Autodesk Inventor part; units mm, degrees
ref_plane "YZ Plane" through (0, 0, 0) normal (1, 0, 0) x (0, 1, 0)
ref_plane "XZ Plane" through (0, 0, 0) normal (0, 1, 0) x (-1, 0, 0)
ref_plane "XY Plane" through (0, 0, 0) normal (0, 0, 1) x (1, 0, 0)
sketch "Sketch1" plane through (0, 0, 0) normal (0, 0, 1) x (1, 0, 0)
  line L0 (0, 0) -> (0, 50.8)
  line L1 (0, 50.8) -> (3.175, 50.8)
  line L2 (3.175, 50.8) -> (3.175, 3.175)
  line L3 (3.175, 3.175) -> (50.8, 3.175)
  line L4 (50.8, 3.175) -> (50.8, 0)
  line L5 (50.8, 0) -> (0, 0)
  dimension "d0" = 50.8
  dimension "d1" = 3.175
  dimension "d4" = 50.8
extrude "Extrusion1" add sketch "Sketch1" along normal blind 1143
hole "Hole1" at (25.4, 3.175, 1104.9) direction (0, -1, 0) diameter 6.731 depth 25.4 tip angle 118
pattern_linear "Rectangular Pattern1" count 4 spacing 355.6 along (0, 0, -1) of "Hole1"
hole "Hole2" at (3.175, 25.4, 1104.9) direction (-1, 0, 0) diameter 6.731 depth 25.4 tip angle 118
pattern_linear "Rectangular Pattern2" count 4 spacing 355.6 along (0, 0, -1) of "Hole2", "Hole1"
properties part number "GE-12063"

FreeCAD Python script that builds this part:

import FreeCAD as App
import Part
import Sketcher
from FreeCAD import Vector
Q = App.Units.Quantity


def add_polygon(sketch, points):
    """Adds a closed chain of lines whose ends are joined by coincident constraints."""
    first, n = sketch.GeometryCount, len(points)
    for a, b in zip(points, points[1:] + points[:1]):
        sketch.addGeometry(Part.LineSegment(App.Vector(*a, 0), App.Vector(*b, 0)), False)
    for i in range(n):
        sketch.addConstraint(Sketcher.Constraint("Coincident", first + i, 2, first + (i + 1) % n, 1))

doc = App.newDocument("Part")
params = doc.addObject("Spreadsheet::Sheet", "Params")
for row, (alias, value) in enumerate([
    ("sketch1_width", "2 in"),
    ("sketch1_width2", "0.125 in"),
    ("pad1_length", "45 in"),
    ("sketch2_diameter", "0.265 in"),
    ("hole_diameter", "0.265 in"),
    ("hole_depth", "1 in"),
    ("linearpattern_pitch", "14 in"),
    ("sketch3_diameter", "0.265 in"),
    ("hole2_diameter", "0.265 in"),
    ("hole2_depth", "1 in"),
    ("linearpattern2_pitch", "14 in"),
], start=1):
    params.set(f"A{row}", alias)
    params.set(f"B{row}", "=" + value)
    params.setAlias(f"B{row}", alias)

body = doc.addObject("PartDesign::Body", "Body")

# Sketch on XY plane
sketch1 = body.newObject("Sketcher::SketchObject", "Sketch")
sketch1.AttachmentSupport = (doc.getObject("XY_Plane"), [""])
sketch1.MapMode = "FlatFace"
add_polygon(sketch1, [(0, 50.8), (0, 0), (50.8, 0), (50.8, 3.2), (3.2, 3.2), (3.2, 50.8)])  # lines 0-5
sketch1.addConstraint([
    Sketcher.Constraint("Vertical", 0),
    Sketcher.Constraint("Horizontal", 1),
    Sketcher.Constraint("Vertical", 2),
    Sketcher.Constraint("Horizontal", 3),
    Sketcher.Constraint("Vertical", 4),
    Sketcher.Constraint("Horizontal", 5),
    Sketcher.Constraint("Coincident", 0, 2, -1, 1),
    Sketcher.Constraint("Equal", 1, 0),
    Sketcher.Constraint("Equal", 5, 2),
    Sketcher.Constraint("DistanceX", 1, 1, 1, 2, Q("2 in")),
    Sketcher.Constraint("DistanceX", 5, 2, 5, 1, Q("0.125 in")),
])
sketch1.setExpression("Constraints[15]", "Params.sketch1_width")
sketch1.setExpression("Constraints[16]", "Params.sketch1_width2")
pad1 = body.newObject("PartDesign::Pad", "Pad")
pad1.Profile = sketch1
pad1.setExpression("Length", "Params.pad1_length")

# Sketch on XZ plane
sketch2 = body.newObject("Sketcher::SketchObject", "Sketch001")
sketch2.AttachmentSupport = (doc.getObject("XZ_Plane"), [""])
sketch2.MapMode = "FlatFace"
sketch2.AttachmentOffset = App.Placement(Vector(0, 0, -0.125 * 25.4), App.Rotation())
sketch2.addGeometry(Part.Circle(Vector(25.4, 1104.9, 0), Vector(0, 0, 1), 3.4), False)
sketch2.addConstraint([
    Sketcher.Constraint("Diameter", 0, Q("0.265 in")),
    Sketcher.Constraint("DistanceX", -1, 1, 0, 3, Q("1 in")),
    Sketcher.Constraint("DistanceY", -1, 1, 0, 3, Q("43.5 in")),
])
sketch2.setExpression("Constraints[0]", "Params.sketch2_diameter")
doc.recompute()
hole = body.newObject("PartDesign::Hole", "Hole")
hole.Profile = sketch2
hole.ThreadType = "None"
hole.setExpression("Diameter", "Params.hole_diameter")
hole.DepthType = "Dimension"
hole.setExpression("Depth", "Params.hole_depth")
hole.DrillPoint = "Angled"
hole.DrillPointAngle = 118
hole.Reversed = True
doc.recompute()

linearpattern = body.newObject("PartDesign::LinearPattern", "LinearPattern")
linearpattern.Originals = [hole]
linearpattern.Direction = (doc.getObject("Z_Axis"), [""])
linearpattern.Mode = "offset"
linearpattern.setExpression("Offset", "Params.linearpattern_pitch")
linearpattern.Occurrences = 4
linearpattern.Reversed = True
body.Tip = linearpattern

# Sketch on YZ plane
sketch3 = body.newObject("Sketcher::SketchObject", "Sketch002")
sketch3.AttachmentSupport = (doc.getObject("YZ_Plane"), [""])
sketch3.MapMode = "FlatFace"
sketch3.AttachmentOffset = App.Placement(Vector(0, 0, 0.125 * 25.4), App.Rotation())
sketch3.addGeometry(Part.Circle(Vector(25.4, 1104.9, 0), Vector(0, 0, 1), 3.4), False)
sketch3.addConstraint([
    Sketcher.Constraint("Diameter", 0, Q("0.265 in")),
    Sketcher.Constraint("DistanceX", -1, 1, 0, 3, Q("1 in")),
    Sketcher.Constraint("DistanceY", -1, 1, 0, 3, Q("43.5 in")),
])
sketch3.setExpression("Constraints[0]", "Params.sketch3_diameter")
doc.recompute()
hole2 = body.newObject("PartDesign::Hole", "Hole001")
hole2.Profile = sketch3
hole2.ThreadType = "None"
hole2.setExpression("Diameter", "Params.hole2_diameter")
hole2.DepthType = "Dimension"
hole2.setExpression("Depth", "Params.hole2_depth")
hole2.DrillPoint = "Angled"
hole2.DrillPointAngle = 118
doc.recompute()

linearpattern2 = body.newObject("PartDesign::LinearPattern", "LinearPattern001")
linearpattern2.Originals = [hole2, hole]
linearpattern2.Direction = (doc.getObject("Z_Axis"), [""])
linearpattern2.Mode = "offset"
linearpattern2.setExpression("Offset", "Params.linearpattern2_pitch")
linearpattern2.Occurrences = 4
linearpattern2.Reversed = True
body.Tip = linearpattern2

doc.recompute()
